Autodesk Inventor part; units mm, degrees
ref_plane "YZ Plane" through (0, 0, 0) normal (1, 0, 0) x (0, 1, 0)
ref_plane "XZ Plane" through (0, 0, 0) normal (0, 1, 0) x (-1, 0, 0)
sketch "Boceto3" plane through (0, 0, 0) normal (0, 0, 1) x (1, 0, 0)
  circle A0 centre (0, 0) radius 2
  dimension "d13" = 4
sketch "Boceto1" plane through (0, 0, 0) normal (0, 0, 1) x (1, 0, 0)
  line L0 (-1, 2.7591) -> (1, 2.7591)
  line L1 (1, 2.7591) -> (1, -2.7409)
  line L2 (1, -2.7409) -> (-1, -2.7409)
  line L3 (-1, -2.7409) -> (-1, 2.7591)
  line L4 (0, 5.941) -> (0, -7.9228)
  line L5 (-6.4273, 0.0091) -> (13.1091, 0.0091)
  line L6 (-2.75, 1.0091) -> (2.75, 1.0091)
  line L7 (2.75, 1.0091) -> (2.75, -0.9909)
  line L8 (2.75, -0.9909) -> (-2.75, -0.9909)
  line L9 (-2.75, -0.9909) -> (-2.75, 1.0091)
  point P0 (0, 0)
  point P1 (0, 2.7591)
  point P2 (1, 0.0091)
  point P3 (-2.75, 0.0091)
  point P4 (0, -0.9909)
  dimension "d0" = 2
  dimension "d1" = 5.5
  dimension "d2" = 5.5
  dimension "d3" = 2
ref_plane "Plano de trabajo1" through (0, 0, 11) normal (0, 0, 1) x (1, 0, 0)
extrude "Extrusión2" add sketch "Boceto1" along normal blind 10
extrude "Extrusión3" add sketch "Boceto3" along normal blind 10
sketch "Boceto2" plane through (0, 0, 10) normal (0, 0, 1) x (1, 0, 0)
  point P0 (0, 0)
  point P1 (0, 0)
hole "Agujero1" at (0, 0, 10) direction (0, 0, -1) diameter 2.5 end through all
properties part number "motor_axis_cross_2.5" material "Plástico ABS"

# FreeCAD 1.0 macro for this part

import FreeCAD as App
import Part
import Sketcher
from FreeCAD import Vector


def add_polygon(sketch, points):
    """Adds a closed chain of lines whose ends are joined by coincident constraints."""
    first, n = sketch.GeometryCount, len(points)
    for a, b in zip(points, points[1:] + points[:1]):
        sketch.addGeometry(Part.LineSegment(App.Vector(*a, 0), App.Vector(*b, 0)), False)
    for i in range(n):
        sketch.addConstraint(Sketcher.Constraint("Coincident", first + i, 2, first + (i + 1) % n, 1))

doc = App.newDocument("Part")
params = doc.addObject("Spreadsheet::Sheet", "Params")
for row, (alias, value) in enumerate([
    ("sketch1_width", "2 mm"),
    ("sketch1_width2", "1.75 mm"),
    ("pad1_length", "10 mm"),
    ("sketch2_diameter", "4 mm"),
    ("pad2_length", "10 mm"),
    ("sketch3_diameter", "2.5 mm"),
    ("hole_diameter", "2.5 mm"),
], start=1):
    params.set(f"A{row}", alias)
    params.set(f"B{row}", "=" + value)
    params.setAlias(f"B{row}", alias)

body = doc.addObject("PartDesign::Body", "Body")

# Sketch on XY plane
sketch1 = body.newObject("Sketcher::SketchObject", "Sketch")
sketch1.AttachmentSupport = (doc.getObject("XY_Plane"), [""])
sketch1.MapMode = "FlatFace"
add_polygon(sketch1, [(-1, 2.8), (-1, 1), (-2.8, 1), (-2.8, -1), (-1, -1), (-1, -2.7), (1, -2.7), (1, -1), (2.8, -1), (2.8, 1), (1, 1), (1, 2.8)])  # lines 0-11
sketch1.addConstraint([
    Sketcher.Constraint("Vertical", 0),
    Sketcher.Constraint("Horizontal", 1),
    Sketcher.Constraint("Vertical", 2),
    Sketcher.Constraint("Horizontal", 3),
    Sketcher.Constraint("Vertical", 4),
    Sketcher.Constraint("Horizontal", 5),
    Sketcher.Constraint("Vertical", 6),
    Sketcher.Constraint("Horizontal", 7),
    Sketcher.Constraint("Vertical", 8),
    Sketcher.Constraint("Horizontal", 9),
    Sketcher.Constraint("Vertical", 10),
    Sketcher.Constraint("Horizontal", 11),
    Sketcher.Constraint("Symmetric", 3, 2, 6, 2, -2),
    Sketcher.Constraint("Symmetric", 1, 2, 8, 2, -2),
    Sketcher.Constraint("Vertical", 0, 2, 3, 2),
    Sketcher.Constraint("Vertical", 6, 2, 9, 2),
    Sketcher.Constraint("Equal", 9, 0),
    Sketcher.Constraint("Equal", 11, 2),
    Sketcher.Constraint("Equal", 0, 4),
    Sketcher.Constraint("DistanceX", 5, 1, 5, 2, 2.0),
    Sketcher.Constraint("DistanceX", 1, 2, 1, 1, 1.75),
    Sketcher.Constraint("DistanceY", -1, 1, 0, 2, 1.009),
])
sketch1.setExpression("Constraints[31]", "Params.sketch1_width")
sketch1.setExpression("Constraints[32]", "Params.sketch1_width2")
pad1 = body.newObject("PartDesign::Pad", "Pad")
pad1.Profile = sketch1
pad1.setExpression("Length", "Params.pad1_length")

# Sketch on XY plane
sketch2 = body.newObject("Sketcher::SketchObject", "Sketch001")
sketch2.AttachmentSupport = (doc.getObject("XY_Plane"), [""])
sketch2.MapMode = "FlatFace"
sketch2.addGeometry(Part.Circle(Vector(0, 0, 0), Vector(0, 0, 1), 2), False)
sketch2.addConstraint([
    Sketcher.Constraint("Coincident", 0, 3, -1, 1),
    Sketcher.Constraint("Diameter", 0, 4.0),
])
sketch2.setExpression("Constraints[1]", "Params.sketch2_diameter")
pad2 = body.newObject("PartDesign::Pad", "Pad001")
pad2.Profile = sketch2
pad2.setExpression("Length", "Params.pad2_length")

# Sketch on XY plane
sketch3 = body.newObject("Sketcher::SketchObject", "Sketch002")
sketch3.AttachmentSupport = (doc.getObject("XY_Plane"), [""])
sketch3.MapMode = "FlatFace"
sketch3.AttachmentOffset = App.Placement(Vector(0, 0, 10), App.Rotation())
sketch3.addGeometry(Part.Circle(Vector(0, 0, 0), Vector(0, 0, 1), 1.2), False)
sketch3.addConstraint([
    Sketcher.Constraint("Coincident", 0, 3, -1, 1),
    Sketcher.Constraint("Diameter", 0, 2.5),
])
sketch3.setExpression("Constraints[1]", "Params.sketch3_diameter")
doc.recompute()
hole = body.newObject("PartDesign::Hole", "Hole")
hole.Profile = sketch3
hole.ThreadType = "None"
hole.setExpression("Diameter", "Params.hole_diameter")
hole.DepthType = "ThroughAll"

doc.recompute()
